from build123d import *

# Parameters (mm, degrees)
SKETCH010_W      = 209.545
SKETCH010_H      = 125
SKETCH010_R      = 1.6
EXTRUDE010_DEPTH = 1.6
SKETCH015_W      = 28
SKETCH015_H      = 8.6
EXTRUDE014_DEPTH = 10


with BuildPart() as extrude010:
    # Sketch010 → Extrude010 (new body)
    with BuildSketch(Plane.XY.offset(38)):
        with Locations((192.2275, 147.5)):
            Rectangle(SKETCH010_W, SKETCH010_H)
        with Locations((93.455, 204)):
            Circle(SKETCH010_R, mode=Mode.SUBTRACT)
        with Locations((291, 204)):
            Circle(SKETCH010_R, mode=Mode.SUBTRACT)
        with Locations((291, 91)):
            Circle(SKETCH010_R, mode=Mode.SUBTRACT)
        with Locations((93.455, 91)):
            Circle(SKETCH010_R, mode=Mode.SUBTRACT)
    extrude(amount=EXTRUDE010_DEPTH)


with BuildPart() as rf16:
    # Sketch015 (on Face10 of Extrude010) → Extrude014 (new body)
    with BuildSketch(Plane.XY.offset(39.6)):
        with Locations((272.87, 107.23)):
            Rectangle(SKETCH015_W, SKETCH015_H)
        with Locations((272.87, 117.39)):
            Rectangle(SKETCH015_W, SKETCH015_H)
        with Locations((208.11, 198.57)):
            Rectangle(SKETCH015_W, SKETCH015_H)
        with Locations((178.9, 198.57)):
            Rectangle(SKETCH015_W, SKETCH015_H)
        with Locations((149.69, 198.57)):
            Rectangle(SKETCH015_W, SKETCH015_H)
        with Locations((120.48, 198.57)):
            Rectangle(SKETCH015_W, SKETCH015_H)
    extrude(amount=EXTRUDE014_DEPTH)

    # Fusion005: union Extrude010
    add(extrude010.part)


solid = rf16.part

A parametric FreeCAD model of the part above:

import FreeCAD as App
import Part
import Sketcher
from FreeCAD import Vector
Q = App.Units.Quantity

doc = App.newDocument("Part")
body = doc.addObject("PartDesign::Body", "Body")

# Sketch on XY plane
sketch1 = body.newObject("Sketcher::SketchObject", "Sketch")
sketch1.AttachmentSupport = (doc.getObject("XY_Plane"), [""])
sketch1.MapMode = "FlatFace"
sketch1.AttachmentOffset = App.Placement(Vector(0, 0, 38), App.Rotation())
sketch1.addGeometry([
    Part.LineSegment(Vector(87.5, 210, 0), Vector(87.5, 85, 0)),  # 0
    Part.LineSegment(Vector(87.5, 85, 0), Vector(297, 85, 0)),  # 1
    Part.LineSegment(Vector(297, 85, 0), Vector(297, 210, 0)),  # 2
    Part.LineSegment(Vector(297, 210, 0), Vector(87.5, 210, 0)),  # 3
    Part.Circle(Vector(93.5, 91, 0), Vector(0, 0, 1), 1.6),  # 4
    Part.Circle(Vector(291, 91, 0), Vector(0, 0, 1), 1.6),  # 5
    Part.Circle(Vector(93.5, 204, 0), Vector(0, 0, 1), 1.6),  # 6
    Part.Circle(Vector(291, 204, 0), Vector(0, 0, 1), 1.6),  # 7
], False)
sketch1.addConstraint([
    Sketcher.Constraint("Coincident", 0, 2, 1, 1),
    Sketcher.Constraint("Coincident", 1, 2, 2, 1),
    Sketcher.Constraint("Coincident", 2, 2, 3, 1),
    Sketcher.Constraint("Coincident", 3, 2, 0, 1),
    Sketcher.Constraint("Vertical", 0),
    Sketcher.Constraint("Horizontal", 1),
    Sketcher.Constraint("Vertical", 2),
    Sketcher.Constraint("Horizontal", 3),
    Sketcher.Constraint("Equal", 4, 5),
    Sketcher.Constraint("Equal", 5, 6),
    Sketcher.Constraint("Equal", 6, 7),
    Sketcher.Constraint("Horizontal", 4, 3, 5, 3),
    Sketcher.Constraint("Horizontal", 6, 3, 7, 3),
    Sketcher.Constraint("Vertical", 4, 3, 6, 3),
    Sketcher.Constraint("Vertical", 5, 3, 7, 3),
    Sketcher.Constraint("Diameter", 4, Q("3.2 mm")),
    Sketcher.Constraint("DistanceY", 0, 2, 0, 1, Q("125 mm")),
    Sketcher.Constraint("DistanceY", -1, 1, 4, 3, Q("91 mm")),
    Sketcher.Constraint("DistanceX", -1, 1, 5, 3, Q("291 mm")),
    Sketcher.Constraint("DistanceY", -1, 1, 6, 3, Q("204 mm")),
    Sketcher.Constraint("DistanceY", -1, 1, 0, 2, Q("85 mm")),
    Sketcher.Constraint("DistanceX", -1, 1, 1, 2, Q("297 mm")),
    Sketcher.Constraint("DistanceX", 0, 2, 4, 3, Q("6 mm")),
    Sketcher.Constraint("DistanceX", 1, 1, 1, 2, Q("209.545 mm")),
])
pad1 = body.newObject("PartDesign::Pad", "Pad")
pad1.Profile = sketch1
pad1.Length = 1.6
body2 = doc.addObject("PartDesign::Body", "Body001")
body2.AllowCompound = True

# Sketch on XY plane
sketch2 = body2.newObject("Sketcher::SketchObject", "Sketch001")
sketch2.AttachmentSupport = (doc.getObject("XY_Plane001"), [""])
sketch2.MapMode = "FlatFace"
sketch2.AttachmentOffset = App.Placement(Vector(0, 0, 39.6), App.Rotation())
sketch2.addGeometry([
    Part.LineSegment(Vector(259, 112, 0), Vector(259, 103, 0)),  # 0
    Part.LineSegment(Vector(259, 103, 0), Vector(287, 103, 0)),  # 1
    Part.LineSegment(Vector(287, 103, 0), Vector(287, 112, 0)),  # 2
    Part.LineSegment(Vector(287, 112, 0), Vector(259, 112, 0)),  # 3
    Part.LineSegment(Vector(259, 122, 0), Vector(259, 113, 0)),  # 4
    Part.LineSegment(Vector(259, 113, 0), Vector(287, 113, 0)),  # 5
    Part.LineSegment(Vector(287, 113, 0), Vector(287, 122, 0)),  # 6
    Part.LineSegment(Vector(287, 122, 0), Vector(259, 122, 0)),  # 7
    Part.LineSegment(Vector(194, 203, 0), Vector(194, 194, 0)),  # 8
    Part.LineSegment(Vector(194, 194, 0), Vector(222, 194, 0)),  # 9
    Part.LineSegment(Vector(222, 194, 0), Vector(222, 203, 0)),  # 10
    Part.LineSegment(Vector(222, 203, 0), Vector(194, 203, 0)),  # 11
    Part.LineSegment(Vector(165, 203, 0), Vector(165, 194, 0)),  # 12
    Part.LineSegment(Vector(165, 194, 0), Vector(193, 194, 0)),  # 13
    Part.LineSegment(Vector(193, 194, 0), Vector(193, 203, 0)),  # 14
    Part.LineSegment(Vector(193, 203, 0), Vector(165, 203, 0)),  # 15
    Part.LineSegment(Vector(136, 203, 0), Vector(136, 194, 0)),  # 16
    Part.LineSegment(Vector(136, 194, 0), Vector(164, 194, 0)),  # 17
    Part.LineSegment(Vector(164, 194, 0), Vector(164, 203, 0)),  # 18
    Part.LineSegment(Vector(164, 203, 0), Vector(136, 203, 0)),  # 19
    Part.LineSegment(Vector(106, 203, 0), Vector(106, 194, 0)),  # 20
    Part.LineSegment(Vector(106, 194, 0), Vector(134, 194, 0)),  # 21
    Part.LineSegment(Vector(134, 194, 0), Vector(134, 203, 0)),  # 22
    Part.LineSegment(Vector(134, 203, 0), Vector(106, 203, 0)),  # 23
], False)
sketch2.addConstraint([
    Sketcher.Constraint("Coincident", 0, 2, 1, 1),
    Sketcher.Constraint("Coincident", 1, 2, 2, 1),
    Sketcher.Constraint("Coincident", 2, 2, 3, 1),
    Sketcher.Constraint("Coincident", 3, 2, 0, 1),
    Sketcher.Constraint("Coincident", 4, 2, 5, 1),
    Sketcher.Constraint("Coincident", 5, 2, 6, 1),
    Sketcher.Constraint("Coincident", 6, 2, 7, 1),
    Sketcher.Constraint("Coincident", 7, 2, 4, 1),
    Sketcher.Constraint("Coincident", 8, 2, 9, 1),
    Sketcher.Constraint("Coincident", 9, 2, 10, 1),
    Sketcher.Constraint("Coincident", 10, 2, 11, 1),
    Sketcher.Constraint("Coincident", 11, 2, 8, 1),
    Sketcher.Constraint("Coincident", 12, 2, 13, 1),
    Sketcher.Constraint("Coincident", 13, 2, 14, 1),
    Sketcher.Constraint("Coincident", 14, 2, 15, 1),
    Sketcher.Constraint("Coincident", 15, 2, 12, 1),
    Sketcher.Constraint("Coincident", 16, 2, 17, 1),
    Sketcher.Constraint("Coincident", 17, 2, 18, 1),
    Sketcher.Constraint("Coincident", 18, 2, 19, 1),
    Sketcher.Constraint("Coincident", 19, 2, 16, 1),
    Sketcher.Constraint("Coincident", 20, 2, 21, 1),
    Sketcher.Constraint("Coincident", 21, 2, 22, 1),
    Sketcher.Constraint("Coincident", 22, 2, 23, 1),
    Sketcher.Constraint("Coincident", 23, 2, 20, 1),
    Sketcher.Constraint("Vertical", 0),
    Sketcher.Constraint("Horizontal", 1),
    Sketcher.Constraint("Vertical", 2),
    Sketcher.Constraint("Horizontal", 3),
    Sketcher.Constraint("Vertical", 4),
    Sketcher.Constraint("Horizontal", 5),
    Sketcher.Constraint("Vertical", 6),
    Sketcher.Constraint("Horizontal", 7),
    Sketcher.Constraint("Vertical", 8),
    Sketcher.Constraint("Horizontal", 9),
    Sketcher.Constraint("Vertical", 10),
    Sketcher.Constraint("Horizontal", 11),
    Sketcher.Constraint("Vertical", 12),
    Sketcher.Constraint("Horizontal", 13),
    Sketcher.Constraint("Vertical", 14),
    Sketcher.Constraint("Horizontal", 15),
    Sketcher.Constraint("Vertical", 16),
    Sketcher.Constraint("Horizontal", 17),
    Sketcher.Constraint("Vertical", 18),
    Sketcher.Constraint("Horizontal", 19),
    Sketcher.Constraint("Vertical", 20),
    Sketcher.Constraint("Horizontal", 21),
    Sketcher.Constraint("Vertical", 22),
    Sketcher.Constraint("Horizontal", 23),
    Sketcher.Constraint("Horizontal", 9, 2, 12, 2),
    Sketcher.Constraint("Horizontal", 11, 2, 14, 2),
    Sketcher.Constraint("Horizontal", 13, 2, 16, 2),
    Sketcher.Constraint("Horizontal", 15, 2, 18, 2),
    Sketcher.Constraint("Horizontal", 17, 2, 20, 2),
    Sketcher.Constraint("Horizontal", 19, 2, 22, 2),
    Sketcher.Constraint("Vertical", 3, 2, 4, 2),
    Sketcher.Constraint("Vertical", 2, 2, 5, 2),
    Sketcher.Constraint("Equal", 7, 9),
    Sketcher.Constraint("Equal", 11, 13),
    Sketcher.Constraint("Equal", 15, 17),
    Sketcher.Constraint("Equal", 19, 21),
    Sketcher.Constraint("Equal", 2, 4),
    Sketcher.Constraint("Equal", 6, 8),
    Sketcher.Constraint("DistanceX", 1, 1, 1, 2, Q("28 mm")),
    Sketcher.Constraint("DistanceY", 0, 2, 0, 1, Q("8.6 mm")),
    Sketcher.Constraint("DistanceX", -1, 1, 12, 2, Q("164.9 mm")),
    Sketcher.Constraint("DistanceX", -1, 1, 0, 2, Q("258.87 mm")),
    Sketcher.Constraint("DistanceY", -1, 1, 0, 2, Q("102.93 mm")),
    Sketcher.Constraint("DistanceY", -1, 1, 4, 2, Q("113.09 mm")),
    Sketcher.Constraint("DistanceX", -1, 1, 8, 2, Q("194.11 mm")),
    Sketcher.Constraint("DistanceY", -1, 1, 8, 2, Q("194.27 mm")),
    Sketcher.Constraint("DistanceX", -1, 1, 16, 2, Q("135.69 mm")),
    Sketcher.Constraint("DistanceX", -1, 1, 20, 2, Q("106.48 mm")),
])
pad2 = body2.newObject("PartDesign::Pad", "Pad001")
pad2.Profile = sketch2
pad2.Length = 10
doc.recompute()

boolean = body2.newObject("PartDesign::Boolean", "Boolean")
boolean.Type = "Fuse"
boolean.addObjects([body])

doc.recompute()
